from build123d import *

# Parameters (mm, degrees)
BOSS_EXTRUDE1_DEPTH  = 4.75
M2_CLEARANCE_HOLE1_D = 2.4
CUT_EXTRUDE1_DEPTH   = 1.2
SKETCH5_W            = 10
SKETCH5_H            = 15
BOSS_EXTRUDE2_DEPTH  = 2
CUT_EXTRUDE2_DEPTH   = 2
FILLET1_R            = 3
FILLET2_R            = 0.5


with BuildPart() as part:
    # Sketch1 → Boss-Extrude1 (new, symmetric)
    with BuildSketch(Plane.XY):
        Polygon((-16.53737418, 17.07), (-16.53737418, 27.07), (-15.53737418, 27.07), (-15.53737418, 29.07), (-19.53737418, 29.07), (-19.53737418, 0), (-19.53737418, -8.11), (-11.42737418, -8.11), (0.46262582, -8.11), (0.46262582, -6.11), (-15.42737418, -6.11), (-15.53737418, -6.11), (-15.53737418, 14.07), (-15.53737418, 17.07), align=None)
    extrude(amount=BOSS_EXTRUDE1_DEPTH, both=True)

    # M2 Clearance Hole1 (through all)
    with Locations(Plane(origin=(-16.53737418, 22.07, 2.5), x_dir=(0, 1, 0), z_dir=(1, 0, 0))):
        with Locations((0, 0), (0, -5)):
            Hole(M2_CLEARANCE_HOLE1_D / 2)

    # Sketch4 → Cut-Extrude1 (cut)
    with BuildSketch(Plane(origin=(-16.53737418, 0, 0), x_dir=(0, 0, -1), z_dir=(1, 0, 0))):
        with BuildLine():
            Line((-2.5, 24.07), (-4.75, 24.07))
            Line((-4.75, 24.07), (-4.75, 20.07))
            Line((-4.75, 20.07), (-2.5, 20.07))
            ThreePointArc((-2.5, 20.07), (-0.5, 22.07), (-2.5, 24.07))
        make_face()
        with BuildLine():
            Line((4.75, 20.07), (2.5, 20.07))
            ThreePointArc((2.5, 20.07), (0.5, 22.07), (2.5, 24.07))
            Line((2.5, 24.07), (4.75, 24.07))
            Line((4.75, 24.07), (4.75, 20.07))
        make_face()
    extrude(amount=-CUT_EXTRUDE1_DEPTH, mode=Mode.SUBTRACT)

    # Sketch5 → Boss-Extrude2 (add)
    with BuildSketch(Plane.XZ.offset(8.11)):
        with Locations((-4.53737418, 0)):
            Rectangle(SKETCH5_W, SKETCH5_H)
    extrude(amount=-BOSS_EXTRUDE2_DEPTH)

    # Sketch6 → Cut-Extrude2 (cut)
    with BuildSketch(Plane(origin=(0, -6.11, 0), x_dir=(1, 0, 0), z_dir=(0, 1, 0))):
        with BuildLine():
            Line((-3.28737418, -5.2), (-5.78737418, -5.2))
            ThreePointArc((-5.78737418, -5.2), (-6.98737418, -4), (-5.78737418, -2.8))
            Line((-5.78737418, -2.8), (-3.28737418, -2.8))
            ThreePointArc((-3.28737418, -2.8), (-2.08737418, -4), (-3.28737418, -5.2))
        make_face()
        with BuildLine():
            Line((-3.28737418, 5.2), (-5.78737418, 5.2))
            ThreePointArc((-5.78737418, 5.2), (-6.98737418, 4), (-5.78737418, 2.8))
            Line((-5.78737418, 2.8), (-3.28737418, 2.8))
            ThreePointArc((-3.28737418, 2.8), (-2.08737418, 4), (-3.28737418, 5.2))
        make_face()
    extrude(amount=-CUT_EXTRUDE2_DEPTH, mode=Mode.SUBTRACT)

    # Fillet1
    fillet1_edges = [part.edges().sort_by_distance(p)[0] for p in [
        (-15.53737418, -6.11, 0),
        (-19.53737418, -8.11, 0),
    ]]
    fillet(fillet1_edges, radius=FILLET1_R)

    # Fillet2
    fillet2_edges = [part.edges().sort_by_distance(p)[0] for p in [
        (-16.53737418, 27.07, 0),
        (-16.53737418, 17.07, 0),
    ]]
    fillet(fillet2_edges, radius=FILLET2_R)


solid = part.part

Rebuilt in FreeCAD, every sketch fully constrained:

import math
import FreeCAD as App
import Part
import Sketcher


def edges_at(feature, points):
    """Names of the edges that pass closest to the given points."""
    edges = feature.Shape.Edges
    near = lambda p: min(range(len(edges)), key=lambda i: edges[i].distToShape(Part.Vertex(*p))[0])
    return sorted({f"Edge{near(p) + 1}" for p in points})

doc = App.newDocument("Part")
body = doc.addObject("PartDesign::Body", "Body")

# Sketch on XY plane
sketch1 = body.newObject("Sketcher::SketchObject", "Sketch")
sketch1.AttachmentSupport = (doc.getObject("XY_Plane"), [""])
sketch1.MapMode = "FlatFace"
sketch1.addGeometry([
    Part.LineSegment(App.Vector(-16.5, 17.1, 0), App.Vector(-16.5, 27.1, 0)),  # 0
    Part.LineSegment(App.Vector(-16.5, 27.1, 0), App.Vector(-15.5, 27.1, 0)),  # 1
    Part.LineSegment(App.Vector(-15.5, 27.1, 0), App.Vector(-15.5, 29.1, 0)),  # 2
    Part.LineSegment(App.Vector(-15.5, 29.1, 0), App.Vector(-19.5, 29.1, 0)),  # 3
    Part.LineSegment(App.Vector(-19.5, 29.1, 0), App.Vector(-19.5, -8.1, 0)),  # 4
    Part.LineSegment(App.Vector(-19.5, -8.1, 0), App.Vector(0.5, -8.1, 0)),  # 5
    Part.LineSegment(App.Vector(0.5, -8.1, 0), App.Vector(0.5, -6.1, 0)),  # 6
    Part.LineSegment(App.Vector(0.5, -6.1, 0), App.Vector(-15.5, -6.1, 0)),  # 7
    Part.LineSegment(App.Vector(-15.5, -6.1, 0), App.Vector(-15.5, 17.1, 0)),  # 8
    Part.LineSegment(App.Vector(-15.5, 17.1, 0), App.Vector(-16.5, 17.1, 0)),  # 9
], False)
sketch1.addConstraint([
    Sketcher.Constraint("Coincident", 0, 2, 1, 1),
    Sketcher.Constraint("Coincident", 1, 2, 2, 1),
    Sketcher.Constraint("Coincident", 2, 2, 3, 1),
    Sketcher.Constraint("Coincident", 3, 2, 4, 1),
    Sketcher.Constraint("Coincident", 4, 2, 5, 1),
    Sketcher.Constraint("Coincident", 5, 2, 6, 1),
    Sketcher.Constraint("Coincident", 6, 2, 7, 1),
    Sketcher.Constraint("Coincident", 7, 2, 8, 1),
    Sketcher.Constraint("Coincident", 8, 2, 9, 1),
    Sketcher.Constraint("Coincident", 9, 2, 0, 1),
    Sketcher.Constraint("Vertical", 0),
    Sketcher.Constraint("Horizontal", 1),
    Sketcher.Constraint("Vertical", 2),
    Sketcher.Constraint("Horizontal", 3),
    Sketcher.Constraint("Vertical", 4),
    Sketcher.Constraint("Horizontal", 5),
    Sketcher.Constraint("Vertical", 6),
    Sketcher.Constraint("Horizontal", 7),
    Sketcher.Constraint("Vertical", 8),
    Sketcher.Constraint("Horizontal", 9),
    Sketcher.Constraint("Vertical", 2, 2, 7, 2),
    Sketcher.Constraint("Equal", 2, 6),
    Sketcher.Constraint("DistanceX", 1, 1, 1, 2, 1.0),
    Sketcher.Constraint("DistanceX", 3, 2, 3, 1, 4.0),
    Sketcher.Constraint("DistanceX", 5, 1, 5, 2, 20.0),
    Sketcher.Constraint("DistanceY", 0, 1, 0, 2, 10.0),
    Sketcher.Constraint("DistanceY", 2, 1, 2, 2, 2.0),
    Sketcher.Constraint("DistanceY", 4, 2, 4, 1, 37.18),
    Sketcher.Constraint("DistanceY", -1, 1, 0, 2, 27.07),
    Sketcher.Constraint("DistanceX", 0, 2, -1, 1, 16.537374),
])
pad1 = body.newObject("PartDesign::Pad", "Pad")
pad1.Profile = sketch1
pad1.Length = 9.5
pad1.Midplane = True

# Sketch on YZ plane
sketch2 = body.newObject("Sketcher::SketchObject", "Sketch001")
sketch2.AttachmentSupport = (doc.getObject("YZ_Plane"), [""])
sketch2.MapMode = "FlatFace"
sketch2.AttachmentOffset = App.Placement(App.Vector(0, 0, -16.537374), App.Rotation())
sketch2.addGeometry([
    Part.Circle(App.Vector(22.1, 2.5, 0), App.Vector(0, 0, 1), 1.2),
    Part.Circle(App.Vector(22.1, -2.5, 0), App.Vector(0, 0, 1), 1.2),
], False)
sketch2.addConstraint([
    Sketcher.Constraint("Equal", 0, 1),
    Sketcher.Constraint("Symmetric", 0, 3, 1, 3, -1),
    Sketcher.Constraint("Diameter", 0, 2.4),
    Sketcher.Constraint("DistanceY", 1, 3, 0, 3, 5.0),
    Sketcher.Constraint("DistanceX", -1, 1, 0, 3, 22.07),
])
doc.recompute()
hole = body.newObject("PartDesign::Hole", "Hole")
hole.Profile = sketch2
hole.ThreadType = "None"
hole.Diameter = 2.4
hole.DepthType = "ThroughAll"

# Sketch on YZ plane
sketch3 = body.newObject("Sketcher::SketchObject", "Sketch002")
sketch3.AttachmentSupport = (doc.getObject("YZ_Plane"), [""])
sketch3.MapMode = "FlatFace"
sketch3.AttachmentOffset = App.Placement(App.Vector(0, 0, -16.537374), App.Rotation())
sketch3.addGeometry([
    Part.LineSegment(App.Vector(24.1, 2.5, 0), App.Vector(24.1, 4.8, 0)),  # 0
    Part.LineSegment(App.Vector(24.1, 4.8, 0), App.Vector(20.1, 4.8, 0)),  # 1
    Part.LineSegment(App.Vector(20.1, 4.8, 0), App.Vector(20.1, 2.5, 0)),  # 2
    Part.ArcOfCircle(Part.Circle(App.Vector(22.1, 2.5, 0), App.Vector(0, 0, 1), 2), math.radians(180), math.radians(360)),  # 3
    Part.LineSegment(App.Vector(20.1, -2.5, 0), App.Vector(20.1, -4.8, 0)),  # 4
    Part.LineSegment(App.Vector(20.1, -4.8, 0), App.Vector(24.1, -4.8, 0)),  # 5
    Part.LineSegment(App.Vector(24.1, -4.8, 0), App.Vector(24.1, -2.5, 0)),  # 6
    Part.ArcOfCircle(Part.Circle(App.Vector(22.1, -2.5, 0), App.Vector(0, 0, 1), 2), math.radians(0), math.radians(180)),  # 7
], False)
sketch3.addConstraint([
    Sketcher.Constraint("Coincident", 0, 2, 1, 1),
    Sketcher.Constraint("Coincident", 1, 2, 2, 1),
    Sketcher.Constraint("Tangent", 2, 2, 3, 1),
    Sketcher.Constraint("Tangent", 3, 2, 0, 1),
    Sketcher.Constraint("Coincident", 4, 2, 5, 1),
    Sketcher.Constraint("Coincident", 5, 2, 6, 1),
    Sketcher.Constraint("Tangent", 6, 2, 7, 1),
    Sketcher.Constraint("Tangent", 7, 2, 4, 1),
    Sketcher.Constraint("Vertical", 0),
    Sketcher.Constraint("Horizontal", 1),
    Sketcher.Constraint("Vertical", 2),
    Sketcher.Constraint("Vertical", 4),
    Sketcher.Constraint("Horizontal", 5),
    Sketcher.Constraint("Vertical", 6),
    Sketcher.Constraint("Equal", 3, 7),
    Sketcher.Constraint("Symmetric", 3, 3, 7, 3, -1),
    Sketcher.Constraint("Equal", 2, 4),
    Sketcher.Constraint("Radius", 3, 2.0),
    Sketcher.Constraint("DistanceY", 7, 3, 3, 3, 5.0),
    Sketcher.Constraint("DistanceY", 0, 1, 0, 2, 2.25),
    Sketcher.Constraint("DistanceX", -1, 1, 3, 3, 22.07),
])
pocket1 = body.newObject("PartDesign::Pocket", "Pocket")
pocket1.Profile = sketch3
pocket1.Length = 1.2

# Sketch on XZ plane
sketch4 = body.newObject("Sketcher::SketchObject", "Sketch003")
sketch4.AttachmentSupport = (doc.getObject("XZ_Plane"), [""])
sketch4.MapMode = "FlatFace"
sketch4.AttachmentOffset = App.Placement(App.Vector(0, 0, 8.11), App.Rotation())
sketch4.addGeometry([
    Part.LineSegment(App.Vector(-10, 8, 0), App.Vector(-10, -8, 0)),
    Part.LineSegment(App.Vector(-10, -8, 0), App.Vector(0, -8, 0)),
    Part.LineSegment(App.Vector(0, -8, 0), App.Vector(0, 8, 0)),
    Part.LineSegment(App.Vector(0, 8, 0), App.Vector(-10, 8, 0)),
], False)
sketch4.addConstraint([
    Sketcher.Constraint("Coincident", 0, 2, 1, 1),
    Sketcher.Constraint("Coincident", 1, 2, 2, 1),
    Sketcher.Constraint("Coincident", 2, 2, 3, 1),
    Sketcher.Constraint("Coincident", 3, 2, 0, 1),
    Sketcher.Constraint("Vertical", 0),
    Sketcher.Constraint("Horizontal", 1),
    Sketcher.Constraint("Vertical", 2),
    Sketcher.Constraint("Horizontal", 3),
    Sketcher.Constraint("DistanceX", 1, 1, 1, 2, 10.0),
    Sketcher.Constraint("DistanceY", 0, 2, 0, 1, 15.0),
    Sketcher.Constraint("DistanceY", 0, 2, -1, 1, 7.5),
    Sketcher.Constraint("DistanceX", 0, 2, -1, 1, 9.537374),
])
pad2 = body.newObject("PartDesign::Pad", "Pad001")
pad2.Profile = sketch4
pad2.Length = 2
pad2.Reversed = True

# Sketch on XZ plane
sketch5 = body.newObject("Sketcher::SketchObject", "Sketch004")
sketch5.AttachmentSupport = (doc.getObject("XZ_Plane"), [""])
sketch5.MapMode = "FlatFace"
sketch5.AttachmentOffset = App.Placement(App.Vector(0, 0, 6.11), App.Rotation())
sketch5.addGeometry([
    Part.LineSegment(App.Vector(-5.8, 5.2, 0), App.Vector(-3.3, 5.2, 0)),  # 0
    Part.ArcOfCircle(Part.Circle(App.Vector(-3.3, 4, 0), App.Vector(0, 0, 1), 1.2), math.radians(-90), math.radians(90)),  # 1
    Part.LineSegment(App.Vector(-3.3, 2.8, 0), App.Vector(-5.8, 2.8, 0)),  # 2
    Part.ArcOfCircle(Part.Circle(App.Vector(-5.8, 4, 0), App.Vector(0, 0, 1), 1.2), math.radians(90), math.radians(270)),  # 3
    Part.LineSegment(App.Vector(-3.3, -5.2, 0), App.Vector(-5.8, -5.2, 0)),  # 4
    Part.ArcOfCircle(Part.Circle(App.Vector(-5.8, -4, 0), App.Vector(0, 0, 1), 1.2), math.radians(90), math.radians(270)),  # 5
    Part.LineSegment(App.Vector(-5.8, -2.8, 0), App.Vector(-3.3, -2.8, 0)),  # 6
    Part.ArcOfCircle(Part.Circle(App.Vector(-3.3, -4, 0), App.Vector(0, 0, 1), 1.2), math.radians(-90), math.radians(90)),  # 7
], False)
sketch5.addConstraint([
    Sketcher.Constraint("Tangent", 0, 2, 1, 2),
    Sketcher.Constraint("Tangent", 1, 1, 2, 1),
    Sketcher.Constraint("Tangent", 2, 2, 3, 2),
    Sketcher.Constraint("Tangent", 3, 1, 0, 1),
    Sketcher.Constraint("Tangent", 4, 2, 5, 2),
    Sketcher.Constraint("Tangent", 5, 1, 6, 1),
    Sketcher.Constraint("Tangent", 6, 2, 7, 2),
    Sketcher.Constraint("Tangent", 7, 1, 4, 1),
    Sketcher.Constraint("Horizontal", 0),
    Sketcher.Constraint("Horizontal", 2),
    Sketcher.Constraint("Horizontal", 4),
    Sketcher.Constraint("Horizontal", 6),
    Sketcher.Constraint("Equal", 3, 5),
    Sketcher.Constraint("Symmetric", 3, 3, 5, 3, -1),
    Sketcher.Constraint("Vertical", 1, 3, 7, 3),
    Sketcher.Constraint("Radius", 1, 1.2),
    Sketcher.Constraint("DistanceX", 0, 1, 0, 2, 2.5),
    Sketcher.Constraint("DistanceY", -1, 1, 1, 3, 4.0),
    Sketcher.Constraint("DistanceX", 1, 3, -1, 1, 3.287374),
])
pocket2 = body.newObject("PartDesign::Pocket", "Pocket001")
pocket2.Profile = sketch5
pocket2.Length = 2
pocket2.Reversed = True
doc.recompute()

fillet = body.newObject("PartDesign::Fillet", "Fillet")
fillet.Base = (pocket2, edges_at(pocket2, [(-15.537, -6.11, 0), (-19.537, -8.11, 0)]))
fillet.Radius = 3
doc.recompute()

fillet2 = body.newObject("PartDesign::Fillet", "Fillet001")
fillet2.Base = (fillet, edges_at(fillet, [(-16.537, 27.07, 0), (-16.537, 17.07, 0)]))
fillet2.Radius = 0.5

doc.recompute()
